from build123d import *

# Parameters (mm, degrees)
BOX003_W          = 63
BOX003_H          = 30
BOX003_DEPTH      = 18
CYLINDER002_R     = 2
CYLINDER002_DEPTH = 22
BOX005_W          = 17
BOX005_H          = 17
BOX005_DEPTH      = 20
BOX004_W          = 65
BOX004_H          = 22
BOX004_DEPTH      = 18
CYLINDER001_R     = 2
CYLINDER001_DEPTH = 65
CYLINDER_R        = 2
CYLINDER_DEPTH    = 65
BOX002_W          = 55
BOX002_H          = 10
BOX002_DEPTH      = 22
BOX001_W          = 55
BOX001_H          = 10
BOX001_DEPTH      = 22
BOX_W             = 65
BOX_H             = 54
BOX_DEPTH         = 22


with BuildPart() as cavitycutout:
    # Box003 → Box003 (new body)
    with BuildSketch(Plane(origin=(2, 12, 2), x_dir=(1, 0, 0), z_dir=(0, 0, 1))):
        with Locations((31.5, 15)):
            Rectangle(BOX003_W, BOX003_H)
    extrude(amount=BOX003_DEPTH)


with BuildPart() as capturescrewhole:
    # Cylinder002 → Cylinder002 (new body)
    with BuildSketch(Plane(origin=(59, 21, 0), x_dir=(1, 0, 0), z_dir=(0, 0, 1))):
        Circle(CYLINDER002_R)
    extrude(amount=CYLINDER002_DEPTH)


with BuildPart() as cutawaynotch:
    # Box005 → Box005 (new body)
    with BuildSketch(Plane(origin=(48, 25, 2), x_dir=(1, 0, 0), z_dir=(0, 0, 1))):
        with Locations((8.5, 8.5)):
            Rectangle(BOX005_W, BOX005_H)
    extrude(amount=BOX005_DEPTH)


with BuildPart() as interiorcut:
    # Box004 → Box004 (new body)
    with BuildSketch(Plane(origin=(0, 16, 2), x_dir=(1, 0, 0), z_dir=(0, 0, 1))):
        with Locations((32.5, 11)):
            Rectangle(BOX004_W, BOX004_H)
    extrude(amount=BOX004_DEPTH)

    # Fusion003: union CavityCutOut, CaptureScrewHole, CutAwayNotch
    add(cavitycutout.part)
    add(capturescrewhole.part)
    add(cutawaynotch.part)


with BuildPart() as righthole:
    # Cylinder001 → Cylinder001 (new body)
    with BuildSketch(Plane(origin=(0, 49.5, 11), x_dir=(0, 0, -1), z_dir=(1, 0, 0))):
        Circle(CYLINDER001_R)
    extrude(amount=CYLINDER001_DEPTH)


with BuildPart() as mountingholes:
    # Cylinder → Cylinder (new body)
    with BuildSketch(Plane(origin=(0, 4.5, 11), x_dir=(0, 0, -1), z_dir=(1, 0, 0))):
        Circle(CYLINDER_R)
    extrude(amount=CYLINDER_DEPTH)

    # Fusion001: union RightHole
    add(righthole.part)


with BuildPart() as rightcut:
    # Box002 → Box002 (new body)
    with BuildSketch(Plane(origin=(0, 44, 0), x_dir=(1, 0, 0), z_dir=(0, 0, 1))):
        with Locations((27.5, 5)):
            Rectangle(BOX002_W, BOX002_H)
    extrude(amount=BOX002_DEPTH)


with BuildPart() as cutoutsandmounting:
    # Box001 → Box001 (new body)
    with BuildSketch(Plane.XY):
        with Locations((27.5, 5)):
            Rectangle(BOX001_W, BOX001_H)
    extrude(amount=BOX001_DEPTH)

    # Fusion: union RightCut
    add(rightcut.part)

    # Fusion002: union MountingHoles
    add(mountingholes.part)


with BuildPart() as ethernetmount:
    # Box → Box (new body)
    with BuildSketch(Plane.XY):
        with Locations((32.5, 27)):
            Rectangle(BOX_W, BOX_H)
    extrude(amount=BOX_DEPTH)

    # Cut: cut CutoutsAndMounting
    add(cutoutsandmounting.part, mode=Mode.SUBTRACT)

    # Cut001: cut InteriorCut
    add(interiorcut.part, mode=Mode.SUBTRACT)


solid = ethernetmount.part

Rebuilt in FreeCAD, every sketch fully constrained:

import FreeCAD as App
import Part
import Sketcher

V = App.Vector


def add_polygon(sketch, points):
    """Adds a closed chain of lines whose ends are joined by coincident constraints."""
    first, n = sketch.GeometryCount, len(points)
    for a, b in zip(points, points[1:] + points[:1]):
        sketch.addGeometry(Part.LineSegment(App.Vector(*a, 0), App.Vector(*b, 0)), False)
    for i in range(n):
        sketch.addConstraint(Sketcher.Constraint("Coincident", first + i, 2, first + (i + 1) % n, 1))

doc = App.newDocument("Part")
body = doc.addObject("PartDesign::Body", "Body")

sketch1 = body.newObject("Sketcher::SketchObject", "Sketch")
sketch1.AttachmentSupport = (doc.getObject("XY_Plane"), [""])
sketch1.MapMode = "FlatFace"
sketch1.AttachmentOffset = App.Placement(V(0, 0, 2), App.Rotation())
add_polygon(sketch1, [(2, 42), (2, 12), (65, 12), (65, 42)])
sketch1.addConstraint([
    Sketcher.Constraint("Vertical", 0),
    Sketcher.Constraint("Horizontal", 1),
    Sketcher.Constraint("Vertical", 2),
    Sketcher.Constraint("Horizontal", 3),
    Sketcher.Constraint("DistanceX", 1, 1, 1, 2, 63.0),
    Sketcher.Constraint("DistanceY", 0, 2, 0, 1, 30.0),
    Sketcher.Constraint("DistanceX", -1, 1, 0, 2, 2.0),
    Sketcher.Constraint("DistanceY", -1, 1, 0, 2, 12.0),
])
pad1 = body.newObject("PartDesign::Pad", "Pad")
pad1.Profile = sketch1
pad1.Length = 18
body2 = doc.addObject("PartDesign::Body", "Body001")

sketch2 = body2.newObject("Sketcher::SketchObject", "Sketch001")
sketch2.AttachmentSupport = (doc.getObject("XY_Plane001"), [""])
sketch2.MapMode = "FlatFace"
sketch2.addGeometry(Part.Circle(V(59, 21, 0), V(0, 0, 1), 2), False)
sketch2.addConstraint([
    Sketcher.Constraint("Diameter", 0, 4.0),
    Sketcher.Constraint("DistanceX", -1, 1, 0, 3, 59.0),
    Sketcher.Constraint("DistanceY", -1, 1, 0, 3, 21.0),
])
pad2 = body2.newObject("PartDesign::Pad", "Pad001")
pad2.Profile = sketch2
pad2.Length = 22
body3 = doc.addObject("PartDesign::Body", "Body002")

sketch3 = body3.newObject("Sketcher::SketchObject", "Sketch002")
sketch3.AttachmentSupport = (doc.getObject("XY_Plane002"), [""])
sketch3.MapMode = "FlatFace"
sketch3.AttachmentOffset = App.Placement(V(0, 0, 2), App.Rotation())
add_polygon(sketch3, [(48, 42), (48, 25), (65, 25), (65, 42)])
sketch3.addConstraint([
    Sketcher.Constraint("Vertical", 0),
    Sketcher.Constraint("Horizontal", 1),
    Sketcher.Constraint("Vertical", 2),
    Sketcher.Constraint("Horizontal", 3),
    Sketcher.Constraint("Equal", 3, 0),
    Sketcher.Constraint("DistanceX", 1, 1, 1, 2, 17.0),
    Sketcher.Constraint("DistanceX", -1, 1, 0, 2, 48.0),
    Sketcher.Constraint("DistanceY", -1, 1, 0, 2, 25.0),
])
pad3 = body3.newObject("PartDesign::Pad", "Pad002")
pad3.Profile = sketch3
pad3.Length = 20
body4 = doc.addObject("PartDesign::Body", "Body003")

sketch4 = body4.newObject("Sketcher::SketchObject", "Sketch003")
sketch4.AttachmentSupport = (doc.getObject("XY_Plane003"), [""])
sketch4.MapMode = "FlatFace"
sketch4.AttachmentOffset = App.Placement(V(0, 0, 2), App.Rotation())
add_polygon(sketch4, [(0, 38), (0, 16), (65, 16), (65, 38)])
sketch4.addConstraint([
    Sketcher.Constraint("Vertical", 0),
    Sketcher.Constraint("Horizontal", 1),
    Sketcher.Constraint("Vertical", 2),
    Sketcher.Constraint("Horizontal", 3),
    Sketcher.Constraint("PointOnObject", 0, 2, -2),
    Sketcher.Constraint("DistanceX", 1, 1, 1, 2, 65.0),
    Sketcher.Constraint("DistanceY", 0, 2, 0, 1, 22.0),
    Sketcher.Constraint("DistanceY", -1, 1, 0, 2, 16.0),
])
pad4 = body4.newObject("PartDesign::Pad", "Pad003")
pad4.Profile = sketch4
pad4.Length = 18
doc.recompute()

boolean = body4.newObject("PartDesign::Boolean", "Boolean")
boolean.Type = "Fuse"
boolean.addObjects([body])
doc.recompute()

boolean2 = body4.newObject("PartDesign::Boolean", "Boolean001")
boolean2.Type = "Fuse"
boolean2.addObjects([body2])
doc.recompute()

boolean3 = body4.newObject("PartDesign::Boolean", "Boolean002")
boolean3.Type = "Fuse"
boolean3.addObjects([body3])
body5 = doc.addObject("PartDesign::Body", "Body004")

sketch5 = body5.newObject("Sketcher::SketchObject", "Sketch004")
sketch5.AttachmentSupport = (doc.getObject("YZ_Plane004"), [""])
sketch5.MapMode = "FlatFace"
sketch5.addGeometry(Part.Circle(V(49.5, 11, 0), V(0, 0, 1), 2), False)
sketch5.addConstraint([
    Sketcher.Constraint("Diameter", 0, 4.0),
    Sketcher.Constraint("DistanceY", -1, 1, 0, 3, 11.0),
    Sketcher.Constraint("DistanceX", -1, 1, 0, 3, 49.5),
])
pad5 = body5.newObject("PartDesign::Pad", "Pad004")
pad5.Profile = sketch5
pad5.Length = 65
body6 = doc.addObject("PartDesign::Body", "Body005")
body6.AllowCompound = True

sketch6 = body6.newObject("Sketcher::SketchObject", "Sketch005")
sketch6.AttachmentSupport = (doc.getObject("YZ_Plane005"), [""])
sketch6.MapMode = "FlatFace"
sketch6.addGeometry(Part.Circle(V(4.5, 11, 0), V(0, 0, 1), 2), False)
sketch6.addConstraint([
    Sketcher.Constraint("Diameter", 0, 4.0),
    Sketcher.Constraint("DistanceY", -1, 1, 0, 3, 11.0),
    Sketcher.Constraint("DistanceX", -1, 1, 0, 3, 4.5),
])
pad6 = body6.newObject("PartDesign::Pad", "Pad005")
pad6.Profile = sketch6
pad6.Length = 65
doc.recompute()

boolean4 = body6.newObject("PartDesign::Boolean", "Boolean003")
boolean4.Type = "Fuse"
boolean4.addObjects([body5])
body7 = doc.addObject("PartDesign::Body", "Body006")

sketch7 = body7.newObject("Sketcher::SketchObject", "Sketch006")
sketch7.AttachmentSupport = (doc.getObject("XY_Plane006"), [""])
sketch7.MapMode = "FlatFace"
add_polygon(sketch7, [(0, 54), (0, 44), (55, 44), (55, 54)])
sketch7.addConstraint([
    Sketcher.Constraint("Vertical", 0),
    Sketcher.Constraint("Horizontal", 1),
    Sketcher.Constraint("Vertical", 2),
    Sketcher.Constraint("Horizontal", 3),
    Sketcher.Constraint("PointOnObject", 0, 2, -2),
    Sketcher.Constraint("DistanceX", 1, 1, 1, 2, 55.0),
    Sketcher.Constraint("DistanceY", 0, 2, 0, 1, 10.0),
    Sketcher.Constraint("DistanceY", -1, 1, 0, 2, 44.0),
])
pad7 = body7.newObject("PartDesign::Pad", "Pad006")
pad7.Profile = sketch7
pad7.Length = 22
body8 = doc.addObject("PartDesign::Body", "Body007")
body8.AllowCompound = True

sketch8 = body8.newObject("Sketcher::SketchObject", "Sketch007")
sketch8.AttachmentSupport = (doc.getObject("XY_Plane007"), [""])
sketch8.MapMode = "FlatFace"
add_polygon(sketch8, [(0, 10), (0, 0), (55, 0), (55, 10)])
sketch8.addConstraint([
    Sketcher.Constraint("Vertical", 0),
    Sketcher.Constraint("Horizontal", 1),
    Sketcher.Constraint("Vertical", 2),
    Sketcher.Constraint("Horizontal", 3),
    Sketcher.Constraint("Coincident", 0, 2, -1, 1),
    Sketcher.Constraint("DistanceX", 1, 1, 1, 2, 55.0),
    Sketcher.Constraint("DistanceY", 0, 2, 0, 1, 10.0),
])
pad8 = body8.newObject("PartDesign::Pad", "Pad007")
pad8.Profile = sketch8
pad8.Length = 22
doc.recompute()

boolean5 = body8.newObject("PartDesign::Boolean", "Boolean004")
boolean5.Type = "Fuse"
boolean5.addObjects([body7])
doc.recompute()

boolean6 = body8.newObject("PartDesign::Boolean", "Boolean005")
boolean6.Type = "Fuse"
boolean6.addObjects([body6])
body9 = doc.addObject("PartDesign::Body", "Body008")

sketch9 = body9.newObject("Sketcher::SketchObject", "Sketch008")
sketch9.AttachmentSupport = (doc.getObject("XY_Plane008"), [""])
sketch9.MapMode = "FlatFace"
add_polygon(sketch9, [(0, 54), (0, 0), (65, 0), (65, 54)])
sketch9.addConstraint([
    Sketcher.Constraint("Vertical", 0),
    Sketcher.Constraint("Horizontal", 1),
    Sketcher.Constraint("Vertical", 2),
    Sketcher.Constraint("Horizontal", 3),
    Sketcher.Constraint("Coincident", 0, 2, -1, 1),
    Sketcher.Constraint("DistanceX", 1, 1, 1, 2, 65.0),
    Sketcher.Constraint("DistanceY", 0, 2, 0, 1, 54.0),
])
pad9 = body9.newObject("PartDesign::Pad", "Pad008")
pad9.Profile = sketch9
pad9.Length = 22
doc.recompute()

boolean7 = body9.newObject("PartDesign::Boolean", "Boolean006")
boolean7.Type = "Cut"
boolean7.addObjects([body8])
doc.recompute()

boolean8 = body9.newObject("PartDesign::Boolean", "Boolean007")
boolean8.Type = "Cut"
boolean8.addObjects([body4])

doc.recompute()
